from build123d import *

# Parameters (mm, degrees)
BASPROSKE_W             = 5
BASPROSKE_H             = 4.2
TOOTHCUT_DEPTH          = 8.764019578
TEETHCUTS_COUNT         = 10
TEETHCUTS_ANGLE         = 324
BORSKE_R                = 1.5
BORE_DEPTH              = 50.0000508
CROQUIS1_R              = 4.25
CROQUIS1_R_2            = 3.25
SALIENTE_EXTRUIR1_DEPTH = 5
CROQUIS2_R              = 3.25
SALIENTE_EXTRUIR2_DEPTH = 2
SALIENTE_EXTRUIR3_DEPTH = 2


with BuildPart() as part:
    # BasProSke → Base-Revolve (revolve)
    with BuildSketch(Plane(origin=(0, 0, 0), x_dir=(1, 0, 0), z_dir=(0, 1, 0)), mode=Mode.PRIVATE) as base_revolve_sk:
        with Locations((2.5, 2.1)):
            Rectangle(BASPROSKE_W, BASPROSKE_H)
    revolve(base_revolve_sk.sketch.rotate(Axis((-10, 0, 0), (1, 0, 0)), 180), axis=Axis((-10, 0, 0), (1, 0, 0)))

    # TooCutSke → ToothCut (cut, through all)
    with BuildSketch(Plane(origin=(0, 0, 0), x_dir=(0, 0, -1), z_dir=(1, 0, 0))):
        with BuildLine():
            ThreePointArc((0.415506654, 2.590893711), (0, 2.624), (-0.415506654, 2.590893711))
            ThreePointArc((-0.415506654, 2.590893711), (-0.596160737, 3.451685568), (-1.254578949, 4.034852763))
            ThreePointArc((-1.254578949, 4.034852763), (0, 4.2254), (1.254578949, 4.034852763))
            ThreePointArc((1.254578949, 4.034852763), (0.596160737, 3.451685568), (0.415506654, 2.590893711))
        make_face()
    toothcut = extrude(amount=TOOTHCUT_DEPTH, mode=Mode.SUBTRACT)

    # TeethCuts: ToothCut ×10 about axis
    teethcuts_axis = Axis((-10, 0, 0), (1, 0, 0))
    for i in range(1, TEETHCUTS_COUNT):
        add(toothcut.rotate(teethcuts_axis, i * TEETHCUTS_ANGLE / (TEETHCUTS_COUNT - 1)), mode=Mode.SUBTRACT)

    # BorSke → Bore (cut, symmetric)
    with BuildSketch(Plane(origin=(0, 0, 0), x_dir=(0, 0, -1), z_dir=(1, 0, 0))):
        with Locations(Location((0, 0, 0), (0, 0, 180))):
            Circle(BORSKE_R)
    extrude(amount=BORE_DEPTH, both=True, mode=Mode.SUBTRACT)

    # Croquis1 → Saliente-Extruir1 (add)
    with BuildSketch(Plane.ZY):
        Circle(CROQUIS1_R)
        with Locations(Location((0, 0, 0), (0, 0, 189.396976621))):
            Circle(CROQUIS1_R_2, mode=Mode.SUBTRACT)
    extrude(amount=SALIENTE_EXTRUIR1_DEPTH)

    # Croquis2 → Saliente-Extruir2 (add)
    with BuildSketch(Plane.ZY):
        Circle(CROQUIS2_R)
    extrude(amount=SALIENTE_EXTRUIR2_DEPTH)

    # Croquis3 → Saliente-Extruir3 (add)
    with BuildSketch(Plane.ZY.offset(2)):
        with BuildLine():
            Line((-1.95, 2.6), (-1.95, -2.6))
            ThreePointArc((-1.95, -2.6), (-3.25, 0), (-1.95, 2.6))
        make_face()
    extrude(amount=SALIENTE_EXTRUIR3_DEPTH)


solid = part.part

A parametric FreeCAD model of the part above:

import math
import FreeCAD as App
import Part
import Sketcher
from FreeCAD import Vector
Q = App.Units.Quantity

doc = App.newDocument("Part")
params = doc.addObject("Spreadsheet::Sheet", "Params")
for row, (alias, value) in enumerate([
    ("sketch1_width", "5 mm"),
    ("sketch1_height", "4.2 mm"),
    ("revolution_angle", "360 deg"),
    ("sketch2_radius", "1.4 mm"),
    ("sketch3_diameter", "3 mm"),
    ("pocket2_length", "100.000102 mm"),
    ("sketch4_diameter", "8.5 mm"),
    ("sketch4_diameter2", "6.5 mm"),
    ("pad1_length", "5 mm"),
    ("sketch5_diameter", "6.5 mm"),
    ("pad2_length", "2 mm"),
    ("sketch6_radius", "3.25 mm"),
    ("sketch6_width", "5.2 mm"),
    ("pad3_length", "2 mm"),
], start=1):
    params.set(f"A{row}", alias)
    params.set(f"B{row}", "=" + value)
    params.setAlias(f"B{row}", alias)

body = doc.addObject("PartDesign::Body", "Body")

# Sketch on XZ plane
sketch1 = doc.addObject("Sketcher::SketchObject", "Sketch")
body.addObject(sketch1)
sketch1.AttachmentSupport = (doc.XZ_Plane, [""])
sketch1.MapMode = "FlatFace"
sketch1.addGeometry([
    Part.LineSegment(Vector(0, -4.2, 0), Vector(0, 0, 0)),
    Part.LineSegment(Vector(0, 0, 0), Vector(5, 0, 0)),
    Part.LineSegment(Vector(5, 0, 0), Vector(5, -4.2, 0)),
    Part.LineSegment(Vector(5, -4.2, 0), Vector(0, -4.2, 0)),
], False)
sketch1.addConstraint([
    Sketcher.Constraint("Coincident", 0, 2, 1, 1),
    Sketcher.Constraint("Coincident", 1, 2, 2, 1),
    Sketcher.Constraint("Coincident", 2, 2, 3, 1),
    Sketcher.Constraint("Coincident", 3, 2, 0, 1),
    Sketcher.Constraint("Vertical", 0),
    Sketcher.Constraint("Horizontal", 1),
    Sketcher.Constraint("Vertical", 2),
    Sketcher.Constraint("Horizontal", 3),
    Sketcher.Constraint("Coincident", 0, 2, -1, 1),
    Sketcher.Constraint("DistanceX", 1, 1, 1, 2, Q("5 mm")),
    Sketcher.Constraint("DistanceY", 0, 1, 0, 2, Q("4.2 mm")),
])
sketch1.setExpression("Constraints[9]", "Params.sketch1_width")
sketch1.setExpression("Constraints[10]", "Params.sketch1_height")
revolution = doc.addObject("PartDesign::Revolution", "Revolution")
body.addObject(revolution)
revolution.Profile = sketch1
revolution.ReferenceAxis = (sketch1, ["H_Axis"])
revolution.setExpression("Angle", "Params.revolution_angle")

# Sketch on YZ plane
sketch2 = doc.addObject("Sketcher::SketchObject", "Sketch001")
body.addObject(sketch2)
sketch2.AttachmentSupport = (doc.YZ_Plane, [""])
sketch2.MapMode = "FlatFace"
sketch2.addGeometry([
    Part.ArcOfCircle(Part.Circle(Vector(0, 0, 0), Vector(0, 0, 1), 2.624), math.radians(-9.111054), math.radians(9.111054)),
    Part.ArcOfCircle(Part.Circle(Vector(2.748292, -1.806631, 0), Vector(0, 0, 1), 1.4), math.radians(23.223733), math.radians(96.455255)),
    Part.ArcOfCircle(Part.Circle(Vector(0, 0, 0), Vector(0, 0, 1), 4.2254), math.radians(-17.272324), math.radians(17.272324)),
    Part.ArcOfCircle(Part.Circle(Vector(2.748292, 1.806631, 0), Vector(0, 0, 1), 1.4), math.radians(-96.455255), math.radians(-23.223733)),
], False)
sketch2.addConstraint([
    Sketcher.Constraint("Coincident", 0, 1, 1, 2),
    Sketcher.Constraint("Coincident", 1, 1, 2, 1),
    Sketcher.Constraint("Coincident", 2, 2, 3, 2),
    Sketcher.Constraint("Coincident", 3, 1, 0, 2),
    Sketcher.Constraint("Coincident", 0, 3, -1, 1),
    Sketcher.Constraint("Coincident", 2, 3, -1, 1),
    Sketcher.Constraint("Equal", 1, 3),
    Sketcher.Constraint("Symmetric", 1, 3, 3, 3, -1),
    Sketcher.Constraint("Radius", 1, Q("1.4 mm")),
    Sketcher.Constraint("Radius", 0, Q("2.624 mm")),
    Sketcher.Constraint("Radius", 2, Q("4.2254 mm")),
    Sketcher.Constraint("DistanceX", 0, 1, 1, 3, Q("0.157398 mm")),
    Sketcher.Constraint("DistanceX", -1, 1, 1, 3, Q("2.748292 mm")),
])
sketch2.setExpression("Constraints[8]", "Params.sketch2_radius")
pocket1 = doc.addObject("PartDesign::Pocket", "Pocket")
body.addObject(pocket1)
pocket1.Profile = sketch2
pocket1.Type = "ThroughAll"
pocket1.Reversed = True
doc.recompute()

polarpattern = doc.addObject("PartDesign::PolarPattern", "PolarPattern")
body.addObject(polarpattern)
polarpattern.Originals = [pocket1]
polarpattern.Axis = (doc.X_Axis, [""])
polarpattern.Angle = 360
polarpattern.Occurrences = 10
body.Tip = polarpattern

# Sketch on YZ plane
sketch3 = doc.addObject("Sketcher::SketchObject", "Sketch002")
body.addObject(sketch3)
sketch3.AttachmentSupport = (doc.YZ_Plane, [""])
sketch3.MapMode = "FlatFace"
sketch3.addGeometry(Part.Circle(Vector(0, 0, 0), Vector(0, 0, 1), 1.5), False)
sketch3.addConstraint([
    Sketcher.Constraint("Coincident", 0, 3, -1, 1),
    Sketcher.Constraint("Diameter", 0, Q("3 mm")),
])
sketch3.setExpression("Constraints[1]", "Params.sketch3_diameter")
pocket2 = doc.addObject("PartDesign::Pocket", "Pocket001")
body.addObject(pocket2)
pocket2.Profile = sketch3
pocket2.setExpression("Length", "Params.pocket2_length")
pocket2.Midplane = True

# Sketch on YZ plane
sketch4 = doc.addObject("Sketcher::SketchObject", "Sketch003")
body.addObject(sketch4)
sketch4.AttachmentSupport = (doc.YZ_Plane, [""])
sketch4.MapMode = "FlatFace"
sketch4.addGeometry([
    Part.Circle(Vector(0, 0, 0), Vector(0, 0, 1), 4.25),
    Part.Circle(Vector(0, 0, 0), Vector(0, 0, 1), 3.25),
], False)
sketch4.addConstraint([
    Sketcher.Constraint("Coincident", 0, 3, -1, 1),
    Sketcher.Constraint("Coincident", 1, 3, -1, 1),
    Sketcher.Constraint("Diameter", 0, Q("8.5 mm")),
    Sketcher.Constraint("Diameter", 1, Q("6.5 mm")),
])
sketch4.setExpression("Constraints[2]", "Params.sketch4_diameter")
sketch4.setExpression("Constraints[3]", "Params.sketch4_diameter2")
pad1 = doc.addObject("PartDesign::Pad", "Pad")
body.addObject(pad1)
pad1.Profile = sketch4
pad1.setExpression("Length", "Params.pad1_length")
pad1.Reversed = True

# Sketch on YZ plane
sketch5 = doc.addObject("Sketcher::SketchObject", "Sketch004")
body.addObject(sketch5)
sketch5.AttachmentSupport = (doc.YZ_Plane, [""])
sketch5.MapMode = "FlatFace"
sketch5.addGeometry(Part.Circle(Vector(0, 0, 0), Vector(0, 0, 1), 3.25), False)
sketch5.addConstraint([
    Sketcher.Constraint("Coincident", 0, 3, -1, 1),
    Sketcher.Constraint("Diameter", 0, Q("6.5 mm")),
])
sketch5.setExpression("Constraints[1]", "Params.sketch5_diameter")
pad2 = doc.addObject("PartDesign::Pad", "Pad001")
body.addObject(pad2)
pad2.Profile = sketch5
pad2.setExpression("Length", "Params.pad2_length")
pad2.Reversed = True

# Sketch on YZ plane
sketch6 = doc.addObject("Sketcher::SketchObject", "Sketch005")
body.addObject(sketch6)
sketch6.AttachmentSupport = (doc.YZ_Plane, [""])
sketch6.MapMode = "FlatFace"
sketch6.AttachmentOffset = App.Placement(Vector(0, 0, -2), App.Rotation())
sketch6.addGeometry([
    Part.LineSegment(Vector(-2.6, -1.95, 0), Vector(2.6, -1.95, 0)),
    Part.ArcOfCircle(Part.Circle(Vector(0, 0, 0), Vector(0, 0, 1), 3.25), math.radians(-143.130102), math.radians(-36.869898)),
], False)
sketch6.addConstraint([
    Sketcher.Constraint("Coincident", 0, 1, 1, 1),
    Sketcher.Constraint("Coincident", 1, 2, 0, 2),
    Sketcher.Constraint("Horizontal", 0),
    Sketcher.Constraint("Coincident", 1, 3, -1, 1),
    Sketcher.Constraint("Radius", 1, Q("3.25 mm")),
    Sketcher.Constraint("DistanceX", 0, 1, 0, 2, Q("5.2 mm")),
])
sketch6.setExpression("Constraints[4]", "Params.sketch6_radius")
sketch6.setExpression("Constraints[5]", "Params.sketch6_width")
pad3 = doc.addObject("PartDesign::Pad", "Pad002")
body.addObject(pad3)
pad3.Profile = sketch6
pad3.setExpression("Length", "Params.pad3_length")
pad3.Reversed = True

doc.recompute()
